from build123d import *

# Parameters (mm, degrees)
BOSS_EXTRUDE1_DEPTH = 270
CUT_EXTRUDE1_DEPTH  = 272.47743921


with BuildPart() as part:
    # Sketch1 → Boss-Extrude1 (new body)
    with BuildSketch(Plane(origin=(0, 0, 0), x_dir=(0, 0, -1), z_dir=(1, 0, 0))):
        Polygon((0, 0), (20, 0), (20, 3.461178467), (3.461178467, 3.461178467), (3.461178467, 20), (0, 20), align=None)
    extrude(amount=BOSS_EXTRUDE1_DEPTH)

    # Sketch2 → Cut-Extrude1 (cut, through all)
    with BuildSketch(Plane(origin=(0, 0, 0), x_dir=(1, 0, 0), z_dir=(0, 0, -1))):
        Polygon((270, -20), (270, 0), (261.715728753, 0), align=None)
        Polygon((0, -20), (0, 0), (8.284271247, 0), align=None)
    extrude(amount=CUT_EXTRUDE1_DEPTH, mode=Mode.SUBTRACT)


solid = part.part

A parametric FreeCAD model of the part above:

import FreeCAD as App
import Part
import Sketcher

V = App.Vector
Q = App.Units.Quantity


def add_polygon(sketch, points):
    """Adds a closed chain of lines whose ends are joined by coincident constraints."""
    first, n = sketch.GeometryCount, len(points)
    for a, b in zip(points, points[1:] + points[:1]):
        sketch.addGeometry(Part.LineSegment(App.Vector(*a, 0), App.Vector(*b, 0)), False)
    for i in range(n):
        sketch.addConstraint(Sketcher.Constraint("Coincident", first + i, 2, first + (i + 1) % n, 1))

doc = App.newDocument("Part")
params = doc.addObject("Spreadsheet::Sheet", "Params")
for row, (alias, value) in enumerate([
    ("sketch1_width", "20 mm"),
    ("pad1_length", "270 mm"),
    ("sketch2_height", "20 mm"),
], start=1):
    params.set(f"A{row}", alias)
    params.set(f"B{row}", "=" + value)
    params.setAlias(f"B{row}", alias)

body = doc.addObject("PartDesign::Body", "Body")

# Sketch on YZ plane
sketch1 = body.newObject("Sketcher::SketchObject", "Sketch")
sketch1.AttachmentSupport = (doc.getObject("YZ_Plane"), [""])
sketch1.MapMode = "FlatFace"
add_polygon(sketch1, [(0, 0), (0, -20), (3.461178, -20), (3.461178, -3.461178), (20, -3.461178), (20, 0)])  # lines 0-5
sketch1.addConstraint([
    Sketcher.Constraint("Vertical", 0),
    Sketcher.Constraint("Horizontal", 1),
    Sketcher.Constraint("Vertical", 2),
    Sketcher.Constraint("Horizontal", 3),
    Sketcher.Constraint("Vertical", 4),
    Sketcher.Constraint("Horizontal", 5),
    Sketcher.Constraint("Coincident", 5, 2, -1, 1),
    Sketcher.Constraint("Equal", 5, 0),
    Sketcher.Constraint("Equal", 3, 2),
    Sketcher.Constraint("DistanceX", 5, 2, 5, 1, 20.0),
    Sketcher.Constraint("DistanceX", 1, 1, 1, 2, 3.461178),
])
sketch1.setExpression("Constraints[15]", "Params.sketch1_width")
pad1 = body.newObject("PartDesign::Pad", "Pad")
pad1.Profile = sketch1
pad1.setExpression("Length", "Params.pad1_length")

# Sketch on XY plane
sketch2 = body.newObject("Sketcher::SketchObject", "Sketch001")
sketch2.AttachmentSupport = (doc.getObject("XY_Plane"), [""])
sketch2.MapMode = "FlatFace"
add_polygon(sketch2, [(270, 20), (270, 0), (261.715729, 0)])  # lines 0-2
add_polygon(sketch2, [(0, 0), (0, 20), (8.284271, 0)])  # lines 3-5
sketch2.addConstraint([
    Sketcher.Constraint("Vertical", 0),
    Sketcher.Constraint("Horizontal", 1),
    Sketcher.Constraint("Vertical", 3),
    Sketcher.Constraint("Horizontal", 5),
    Sketcher.Constraint("Coincident", 5, 2, -1, 1),
    Sketcher.Constraint("PointOnObject", 0, 2, -1),
    Sketcher.Constraint("Horizontal", 2, 2, 3, 2),
    Sketcher.Constraint("Equal", 1, 5),
    Sketcher.Constraint("DistanceY", 0, 2, 0, 1, 20.0),
    Sketcher.Constraint("DistanceX", -1, 1, 0, 2, 270.0),
    Sketcher.Constraint("Angle", 2, Q("67.5 deg")),
])
sketch2.setExpression("Constraints[14]", "Params.sketch2_height")
pocket1 = body.newObject("PartDesign::Pocket", "Pocket")
pocket1.Profile = sketch2
pocket1.Type = "ThroughAll"

doc.recompute()
